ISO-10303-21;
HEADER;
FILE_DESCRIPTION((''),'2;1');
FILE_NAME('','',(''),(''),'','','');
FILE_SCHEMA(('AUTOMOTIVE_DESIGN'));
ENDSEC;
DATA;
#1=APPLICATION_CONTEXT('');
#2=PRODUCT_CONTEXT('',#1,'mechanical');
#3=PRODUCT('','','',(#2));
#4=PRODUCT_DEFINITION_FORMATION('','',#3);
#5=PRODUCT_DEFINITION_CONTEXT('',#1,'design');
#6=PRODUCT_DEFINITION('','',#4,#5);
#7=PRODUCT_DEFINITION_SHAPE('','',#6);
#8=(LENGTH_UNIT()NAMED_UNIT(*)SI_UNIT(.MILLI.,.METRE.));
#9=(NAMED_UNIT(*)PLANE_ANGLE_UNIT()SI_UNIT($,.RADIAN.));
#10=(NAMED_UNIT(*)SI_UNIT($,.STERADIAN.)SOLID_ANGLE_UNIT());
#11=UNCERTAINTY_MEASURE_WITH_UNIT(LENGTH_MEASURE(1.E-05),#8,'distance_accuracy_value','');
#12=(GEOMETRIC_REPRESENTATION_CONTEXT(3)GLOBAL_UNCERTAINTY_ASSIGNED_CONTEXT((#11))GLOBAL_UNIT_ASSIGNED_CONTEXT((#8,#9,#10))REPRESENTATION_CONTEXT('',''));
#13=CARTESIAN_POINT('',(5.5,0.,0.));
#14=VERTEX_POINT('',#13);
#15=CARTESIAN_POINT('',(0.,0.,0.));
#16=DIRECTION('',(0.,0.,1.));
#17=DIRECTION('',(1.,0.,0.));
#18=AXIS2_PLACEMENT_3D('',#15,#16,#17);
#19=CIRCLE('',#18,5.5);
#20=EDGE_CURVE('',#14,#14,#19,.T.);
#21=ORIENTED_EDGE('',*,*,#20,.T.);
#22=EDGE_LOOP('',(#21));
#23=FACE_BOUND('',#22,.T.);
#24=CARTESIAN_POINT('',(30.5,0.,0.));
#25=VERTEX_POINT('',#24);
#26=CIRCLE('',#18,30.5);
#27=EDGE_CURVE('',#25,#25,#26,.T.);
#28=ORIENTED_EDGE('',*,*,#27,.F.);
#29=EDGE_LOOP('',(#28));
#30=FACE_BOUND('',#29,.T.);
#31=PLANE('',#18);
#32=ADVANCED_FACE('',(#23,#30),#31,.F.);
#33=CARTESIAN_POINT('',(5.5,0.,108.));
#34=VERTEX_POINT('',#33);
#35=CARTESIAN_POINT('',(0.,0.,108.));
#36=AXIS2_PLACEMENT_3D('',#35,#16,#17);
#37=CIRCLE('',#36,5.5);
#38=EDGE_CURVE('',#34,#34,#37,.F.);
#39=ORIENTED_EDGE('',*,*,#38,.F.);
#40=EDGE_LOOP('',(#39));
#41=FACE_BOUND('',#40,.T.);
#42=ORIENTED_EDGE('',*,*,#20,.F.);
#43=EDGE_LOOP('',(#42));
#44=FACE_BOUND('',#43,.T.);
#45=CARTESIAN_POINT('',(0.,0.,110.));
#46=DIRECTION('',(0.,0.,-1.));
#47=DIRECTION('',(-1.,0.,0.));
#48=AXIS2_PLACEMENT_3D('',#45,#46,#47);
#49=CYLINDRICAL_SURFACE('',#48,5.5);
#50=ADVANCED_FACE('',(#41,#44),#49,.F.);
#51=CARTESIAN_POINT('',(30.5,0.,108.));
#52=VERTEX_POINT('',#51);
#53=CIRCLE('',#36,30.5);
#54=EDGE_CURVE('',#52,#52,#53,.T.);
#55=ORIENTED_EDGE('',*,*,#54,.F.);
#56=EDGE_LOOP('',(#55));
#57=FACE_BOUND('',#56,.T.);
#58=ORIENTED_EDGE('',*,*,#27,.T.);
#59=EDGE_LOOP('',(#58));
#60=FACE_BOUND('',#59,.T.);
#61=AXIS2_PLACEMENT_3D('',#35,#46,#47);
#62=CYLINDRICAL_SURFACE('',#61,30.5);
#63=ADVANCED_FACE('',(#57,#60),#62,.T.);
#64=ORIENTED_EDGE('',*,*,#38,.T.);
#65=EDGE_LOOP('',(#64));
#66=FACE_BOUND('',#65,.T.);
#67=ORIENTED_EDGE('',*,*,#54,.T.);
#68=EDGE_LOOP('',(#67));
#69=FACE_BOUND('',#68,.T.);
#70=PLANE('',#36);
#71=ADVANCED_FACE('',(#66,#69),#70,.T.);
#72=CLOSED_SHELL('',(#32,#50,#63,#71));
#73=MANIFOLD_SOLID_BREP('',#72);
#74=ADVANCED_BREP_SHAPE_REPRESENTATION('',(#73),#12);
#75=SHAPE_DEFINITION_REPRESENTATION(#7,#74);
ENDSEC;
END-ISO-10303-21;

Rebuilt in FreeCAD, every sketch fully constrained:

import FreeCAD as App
import Part
import Sketcher

V = App.Vector
Q = App.Units.Quantity

doc = App.newDocument("Part")
body = doc.addObject("PartDesign::Body", "Body")

sketch1 = body.newObject("Sketcher::SketchObject", "Sketch")
sketch1.AttachmentSupport = (doc.getObject("XY_Plane"), [""])
sketch1.MapMode = "FlatFace"
sketch1.addGeometry(Part.Circle(V(0, 0, 0), V(0, 0, 1), 30.5), False)
sketch1.addConstraint([
    Sketcher.Constraint("Coincident", 0, 3, -1, 1),
    Sketcher.Constraint("Diameter", 0, Q("61 mm")),
])
pad1 = body.newObject("PartDesign::Pad", "Pad")
pad1.Profile = sketch1
pad1.Length = 108

sketch2 = body.newObject("Sketcher::SketchObject", "Sketch001")
sketch2.AttachmentSupport = (doc.getObject("XY_Plane"), [""])
sketch2.MapMode = "FlatFace"
sketch2.addGeometry(Part.Circle(V(0, 0, 0), V(0, 0, 1), 5.5), False)
sketch2.addConstraint([
    Sketcher.Constraint("Coincident", 0, 3, -1, 1),
    Sketcher.Constraint("Diameter", 0, Q("11 mm")),
])
pocket1 = body.newObject("PartDesign::Pocket", "Pocket")
pocket1.Profile = sketch2
pocket1.Length = 110
pocket1.Reversed = True

doc.recompute()
